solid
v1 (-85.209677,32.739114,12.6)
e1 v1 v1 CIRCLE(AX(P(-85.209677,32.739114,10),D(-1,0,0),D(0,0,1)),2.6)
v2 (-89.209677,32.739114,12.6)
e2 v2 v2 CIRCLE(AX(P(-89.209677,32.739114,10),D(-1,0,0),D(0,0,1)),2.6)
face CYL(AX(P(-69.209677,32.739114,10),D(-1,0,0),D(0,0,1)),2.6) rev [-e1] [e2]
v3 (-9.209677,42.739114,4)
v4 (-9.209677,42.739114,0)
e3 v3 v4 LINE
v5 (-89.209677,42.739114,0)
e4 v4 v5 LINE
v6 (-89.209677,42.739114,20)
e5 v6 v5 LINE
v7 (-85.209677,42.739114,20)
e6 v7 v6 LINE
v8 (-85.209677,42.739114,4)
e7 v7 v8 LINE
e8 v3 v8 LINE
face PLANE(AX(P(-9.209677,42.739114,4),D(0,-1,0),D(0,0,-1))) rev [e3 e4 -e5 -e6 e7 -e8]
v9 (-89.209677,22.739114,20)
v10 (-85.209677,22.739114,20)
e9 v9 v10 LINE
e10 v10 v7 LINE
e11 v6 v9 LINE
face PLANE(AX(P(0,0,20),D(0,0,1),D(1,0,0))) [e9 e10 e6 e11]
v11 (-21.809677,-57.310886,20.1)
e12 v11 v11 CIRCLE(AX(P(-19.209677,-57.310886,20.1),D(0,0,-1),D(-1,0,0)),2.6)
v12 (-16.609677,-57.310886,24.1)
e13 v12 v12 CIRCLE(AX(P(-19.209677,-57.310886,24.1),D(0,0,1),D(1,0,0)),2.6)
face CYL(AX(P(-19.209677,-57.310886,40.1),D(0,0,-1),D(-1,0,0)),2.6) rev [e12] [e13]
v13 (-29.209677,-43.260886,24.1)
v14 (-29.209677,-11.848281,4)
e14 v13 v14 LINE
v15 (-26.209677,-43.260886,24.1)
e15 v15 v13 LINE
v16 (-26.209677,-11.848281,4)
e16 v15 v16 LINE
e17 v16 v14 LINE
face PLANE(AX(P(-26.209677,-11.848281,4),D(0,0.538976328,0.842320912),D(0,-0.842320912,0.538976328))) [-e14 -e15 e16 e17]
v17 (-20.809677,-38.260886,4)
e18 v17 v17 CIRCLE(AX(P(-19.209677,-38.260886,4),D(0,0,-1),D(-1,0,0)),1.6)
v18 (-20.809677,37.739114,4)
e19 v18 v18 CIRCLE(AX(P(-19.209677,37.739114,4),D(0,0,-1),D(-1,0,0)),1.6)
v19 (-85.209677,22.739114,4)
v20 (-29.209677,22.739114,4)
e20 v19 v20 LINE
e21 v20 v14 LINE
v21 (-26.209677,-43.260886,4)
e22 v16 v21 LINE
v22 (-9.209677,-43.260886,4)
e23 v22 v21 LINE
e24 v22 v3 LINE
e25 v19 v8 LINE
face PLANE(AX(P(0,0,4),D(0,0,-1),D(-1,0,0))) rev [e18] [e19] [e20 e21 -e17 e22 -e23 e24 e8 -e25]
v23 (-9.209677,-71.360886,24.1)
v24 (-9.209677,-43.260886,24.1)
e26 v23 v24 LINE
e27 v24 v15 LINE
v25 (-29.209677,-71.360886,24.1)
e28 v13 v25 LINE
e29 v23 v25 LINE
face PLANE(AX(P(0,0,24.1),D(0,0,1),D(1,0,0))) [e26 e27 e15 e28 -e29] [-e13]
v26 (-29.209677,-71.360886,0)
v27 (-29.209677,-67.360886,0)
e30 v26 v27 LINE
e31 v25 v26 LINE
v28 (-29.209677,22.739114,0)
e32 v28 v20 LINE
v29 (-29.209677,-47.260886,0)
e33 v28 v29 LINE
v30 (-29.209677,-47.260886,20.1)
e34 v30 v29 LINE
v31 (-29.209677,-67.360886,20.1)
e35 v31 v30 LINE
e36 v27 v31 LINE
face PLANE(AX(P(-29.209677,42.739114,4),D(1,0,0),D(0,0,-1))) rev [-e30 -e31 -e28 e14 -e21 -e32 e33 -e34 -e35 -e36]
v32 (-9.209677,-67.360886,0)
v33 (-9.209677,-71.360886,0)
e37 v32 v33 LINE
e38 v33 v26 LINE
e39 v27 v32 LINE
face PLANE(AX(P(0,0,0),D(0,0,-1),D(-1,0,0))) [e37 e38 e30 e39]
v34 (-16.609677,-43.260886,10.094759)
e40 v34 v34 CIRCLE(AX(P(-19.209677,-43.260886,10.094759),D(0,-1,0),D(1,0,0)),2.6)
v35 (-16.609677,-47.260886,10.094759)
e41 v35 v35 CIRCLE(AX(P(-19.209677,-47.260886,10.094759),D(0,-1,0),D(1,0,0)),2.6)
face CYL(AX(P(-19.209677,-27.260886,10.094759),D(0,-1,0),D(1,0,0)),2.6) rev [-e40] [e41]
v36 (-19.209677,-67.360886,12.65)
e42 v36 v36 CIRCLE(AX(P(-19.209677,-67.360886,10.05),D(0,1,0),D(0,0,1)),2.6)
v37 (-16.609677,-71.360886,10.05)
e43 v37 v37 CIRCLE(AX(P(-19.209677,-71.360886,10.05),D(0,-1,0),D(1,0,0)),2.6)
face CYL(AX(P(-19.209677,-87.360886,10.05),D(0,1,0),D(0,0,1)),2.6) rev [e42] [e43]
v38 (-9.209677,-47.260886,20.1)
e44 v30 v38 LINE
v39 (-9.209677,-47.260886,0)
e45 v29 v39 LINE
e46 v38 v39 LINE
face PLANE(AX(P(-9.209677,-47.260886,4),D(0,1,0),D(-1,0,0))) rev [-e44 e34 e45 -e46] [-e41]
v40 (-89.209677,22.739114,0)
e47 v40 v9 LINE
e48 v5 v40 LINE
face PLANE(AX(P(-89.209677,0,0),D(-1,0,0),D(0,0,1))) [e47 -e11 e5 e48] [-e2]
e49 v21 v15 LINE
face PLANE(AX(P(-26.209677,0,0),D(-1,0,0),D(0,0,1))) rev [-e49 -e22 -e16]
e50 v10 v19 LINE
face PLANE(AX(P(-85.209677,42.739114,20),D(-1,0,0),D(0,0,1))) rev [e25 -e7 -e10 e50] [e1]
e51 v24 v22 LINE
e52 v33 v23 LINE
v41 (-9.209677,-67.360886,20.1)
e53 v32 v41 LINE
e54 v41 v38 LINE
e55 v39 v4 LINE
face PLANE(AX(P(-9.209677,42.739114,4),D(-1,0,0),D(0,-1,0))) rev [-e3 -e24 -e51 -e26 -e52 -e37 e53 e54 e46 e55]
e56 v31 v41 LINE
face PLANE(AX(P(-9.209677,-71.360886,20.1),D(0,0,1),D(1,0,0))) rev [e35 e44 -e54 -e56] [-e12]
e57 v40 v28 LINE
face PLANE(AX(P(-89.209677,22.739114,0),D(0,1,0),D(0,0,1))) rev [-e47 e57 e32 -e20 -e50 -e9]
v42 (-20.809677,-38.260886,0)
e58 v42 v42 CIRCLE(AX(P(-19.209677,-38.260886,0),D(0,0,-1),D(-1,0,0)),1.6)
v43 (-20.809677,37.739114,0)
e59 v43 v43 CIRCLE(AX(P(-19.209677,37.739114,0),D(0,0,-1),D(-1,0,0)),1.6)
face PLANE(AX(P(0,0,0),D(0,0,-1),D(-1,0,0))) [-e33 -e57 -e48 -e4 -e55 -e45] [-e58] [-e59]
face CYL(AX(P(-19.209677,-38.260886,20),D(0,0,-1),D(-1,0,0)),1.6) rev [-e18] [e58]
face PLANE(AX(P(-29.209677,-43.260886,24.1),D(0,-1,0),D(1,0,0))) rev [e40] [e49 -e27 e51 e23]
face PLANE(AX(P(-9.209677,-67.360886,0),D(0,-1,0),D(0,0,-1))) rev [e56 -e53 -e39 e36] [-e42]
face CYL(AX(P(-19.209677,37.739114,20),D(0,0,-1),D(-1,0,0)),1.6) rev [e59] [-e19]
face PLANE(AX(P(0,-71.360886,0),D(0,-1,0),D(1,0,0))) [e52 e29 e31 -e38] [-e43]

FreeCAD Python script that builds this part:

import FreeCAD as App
import Part
import Sketcher
from FreeCAD import Vector
Q = App.Units.Quantity

doc = App.newDocument("Part")
body = doc.addObject("PartDesign::Body", "Body")

sketch1 = doc.addObject("Sketcher::SketchObject", "Sketch")
body.addObject(sketch1)
sketch1.AttachmentSupport = (doc.XY_Plane, [""])
sketch1.MapMode = "FlatFace"
sketch1.addGeometry([
    Part.LineSegment(Vector(-29.209677, 42.739114, 0), Vector(-29.209677, -47.260886, 0)),
    Part.LineSegment(Vector(-29.209677, -47.260886, 0), Vector(-9.209677, -47.260886, 0)),
    Part.LineSegment(Vector(-9.209677, -47.260886, 0), Vector(-9.209677, 42.739114, 0)),
    Part.LineSegment(Vector(-9.209677, 42.739114, 0), Vector(-29.209677, 42.739114, 0)),
], False)
sketch1.addConstraint([
    Sketcher.Constraint("Coincident", 0, 2, 1, 1),
    Sketcher.Constraint("Coincident", 1, 2, 2, 1),
    Sketcher.Constraint("Coincident", 2, 2, 3, 1),
    Sketcher.Constraint("Coincident", 3, 2, 0, 1),
    Sketcher.Constraint("Vertical", 0),
    Sketcher.Constraint("Horizontal", 1),
    Sketcher.Constraint("Vertical", 2),
    Sketcher.Constraint("Horizontal", 3),
    Sketcher.Constraint("DistanceX", 1, 1, 1, 2, Q("20 mm")),
    Sketcher.Constraint("DistanceY", 0, 2, 0, 1, Q("90 mm")),
    Sketcher.Constraint("DistanceX", 0, 2, -1, 1, Q("29.209677 mm")),
    Sketcher.Constraint("DistanceY", 0, 2, -1, 1, Q("47.260886 mm")),
])
pad1 = doc.addObject("PartDesign::Pad", "Pad")
body.addObject(pad1)
pad1.Profile = sketch1
pad1.Length = 4

sketch2 = doc.addObject("Sketcher::SketchObject", "Sketch001")
body.addObject(sketch2)
sketch2.AttachmentSupport = (doc.XY_Plane, [""])
sketch2.MapMode = "FlatFace"
sketch2.AttachmentOffset = App.Placement(Vector(0, 0, 4), App.Rotation())
sketch2.addGeometry([
    Part.LineSegment(Vector(-29.209677, -43.260886, 0), Vector(-29.209677, -47.260886, 0)),
    Part.LineSegment(Vector(-29.209677, -47.260886, 0), Vector(-9.209677, -47.260886, 0)),
    Part.LineSegment(Vector(-9.209677, -47.260886, 0), Vector(-9.209677, -43.260886, 0)),
    Part.LineSegment(Vector(-9.209677, -43.260886, 0), Vector(-29.209677, -43.260886, 0)),
], False)
sketch2.addConstraint([
    Sketcher.Constraint("Coincident", 0, 2, 1, 1),
    Sketcher.Constraint("Coincident", 1, 2, 2, 1),
    Sketcher.Constraint("Coincident", 2, 2, 3, 1),
    Sketcher.Constraint("Coincident", 3, 2, 0, 1),
    Sketcher.Constraint("Vertical", 0),
    Sketcher.Constraint("Horizontal", 1),
    Sketcher.Constraint("Vertical", 2),
    Sketcher.Constraint("Horizontal", 3),
    Sketcher.Constraint("DistanceX", 1, 1, 1, 2, Q("20 mm")),
    Sketcher.Constraint("DistanceY", 0, 2, 0, 1, Q("4 mm")),
    Sketcher.Constraint("DistanceX", 0, 2, -1, 1, Q("29.209677 mm")),
    Sketcher.Constraint("DistanceY", 0, 2, -1, 1, Q("47.260886 mm")),
])
pad2 = doc.addObject("PartDesign::Pad", "Pad001")
body.addObject(pad2)
pad2.Profile = sketch2
pad2.Length = 20.1

sketch3 = doc.addObject("Sketcher::SketchObject", "Sketch002")
body.addObject(sketch3)
sketch3.AttachmentSupport = (doc.XZ_Plane, [""])
sketch3.MapMode = "FlatFace"
sketch3.AttachmentOffset = App.Placement(Vector(0, 0, 47.260886), App.Rotation())
sketch3.addGeometry([
    Part.LineSegment(Vector(-9.209677, 20.1, 0), Vector(-9.209677, 24.1, 0)),
    Part.LineSegment(Vector(-9.209677, 24.1, 0), Vector(-29.209677, 24.1, 0)),
    Part.LineSegment(Vector(-29.209677, 24.1, 0), Vector(-29.209677, 20.1, 0)),
    Part.LineSegment(Vector(-29.209677, 20.1, 0), Vector(-9.209677, 20.1, 0)),
], False)
sketch3.addConstraint([
    Sketcher.Constraint("Coincident", 0, 2, 1, 1),
    Sketcher.Constraint("Coincident", 1, 2, 2, 1),
    Sketcher.Constraint("Coincident", 2, 2, 3, 1),
    Sketcher.Constraint("Coincident", 3, 2, 0, 1),
    Sketcher.Constraint("Vertical", 0),
    Sketcher.Constraint("Horizontal", 1),
    Sketcher.Constraint("Vertical", 2),
    Sketcher.Constraint("Horizontal", 3),
    Sketcher.Constraint("DistanceX", 1, 2, 1, 1, Q("20 mm")),
    Sketcher.Constraint("DistanceY", 0, 1, 0, 2, Q("4 mm")),
    Sketcher.Constraint("DistanceY", -1, 1, 0, 2, Q("24.1 mm")),
    Sketcher.Constraint("DistanceX", 0, 2, -1, 1, Q("9.209677 mm")),
])
pad3 = doc.addObject("PartDesign::Pad", "Pad002")
body.addObject(pad3)
pad3.Profile = sketch3
pad3.Length = 24.1

sketch4 = doc.addObject("Sketcher::SketchObject", "Sketch003")
body.addObject(sketch4)
sketch4.AttachmentSupport = (doc.XY_Plane, [""])
sketch4.MapMode = "FlatFace"
sketch4.AttachmentOffset = App.Placement(Vector(0, 0, 20.1), App.Rotation())
sketch4.addGeometry([
    Part.LineSegment(Vector(-9.209677, -67.360886, 0), Vector(-9.209677, -71.360886, 0)),
    Part.LineSegment(Vector(-9.209677, -71.360886, 0), Vector(-29.209677, -71.360886, 0)),
    Part.LineSegment(Vector(-29.209677, -71.360886, 0), Vector(-29.209677, -67.360886, 0)),
    Part.LineSegment(Vector(-29.209677, -67.360886, 0), Vector(-9.209677, -67.360886, 0)),
], False)
sketch4.addConstraint([
    Sketcher.Constraint("Coincident", 0, 2, 1, 1),
    Sketcher.Constraint("Coincident", 1, 2, 2, 1),
    Sketcher.Constraint("Coincident", 2, 2, 3, 1),
    Sketcher.Constraint("Coincident", 3, 2, 0, 1),
    Sketcher.Constraint("Vertical", 0),
    Sketcher.Constraint("Horizontal", 1),
    Sketcher.Constraint("Vertical", 2),
    Sketcher.Constraint("Horizontal", 3),
    Sketcher.Constraint("DistanceX", 1, 2, 1, 1, Q("20 mm")),
    Sketcher.Constraint("DistanceY", 0, 2, 0, 1, Q("4 mm")),
    Sketcher.Constraint("DistanceX", 0, 2, -1, 1, Q("9.209677 mm")),
    Sketcher.Constraint("DistanceY", 0, 2, -1, 1, Q("71.360886 mm")),
])
pad4 = doc.addObject("PartDesign::Pad", "Pad003")
body.addObject(pad4)
pad4.Profile = sketch4
pad4.Length = 20.1
pad4.Reversed = True

sketch5 = doc.addObject("Sketcher::SketchObject", "Sketch004")
body.addObject(sketch5)
sketch5.AttachmentSupport = (doc.XZ_Plane, [""])
sketch5.MapMode = "FlatFace"
sketch5.AttachmentOffset = App.Placement(Vector(0, 0, 47.260886), App.Rotation())
sketch5.addGeometry(Part.Circle(Vector(-19.209677, 10.094759, 0), Vector(0, 0, 1), 2.6), False)
sketch5.addConstraint([
    Sketcher.Constraint("Diameter", 0, Q("5.2 mm")),
    Sketcher.Constraint("DistanceY", -1, 1, 0, 3, Q("10.094759 mm")),
    Sketcher.Constraint("DistanceX", 0, 3, -1, 1, Q("19.209677 mm")),
])
pocket1 = doc.addObject("PartDesign::Pocket", "Pocket")
body.addObject(pocket1)
pocket1.Profile = sketch5
pocket1.Length = 20

sketch6 = doc.addObject("Sketcher::SketchObject", "Sketch005")
body.addObject(sketch6)
sketch6.AttachmentSupport = (doc.XY_Plane, [""])
sketch6.MapMode = "FlatFace"
sketch6.AttachmentOffset = App.Placement(Vector(0, 0, 20.1), App.Rotation())
sketch6.addGeometry(Part.Circle(Vector(-19.209677, -57.310886, 0), Vector(0, 0, 1), 2.6), False)
sketch6.addConstraint([
    Sketcher.Constraint("Diameter", 0, Q("5.2 mm")),
    Sketcher.Constraint("DistanceX", 0, 3, -1, 1, Q("19.209677 mm")),
    Sketcher.Constraint("DistanceY", 0, 3, -1, 1, Q("57.310886 mm")),
])
pocket2 = doc.addObject("PartDesign::Pocket", "Pocket001")
body.addObject(pocket2)
pocket2.Profile = sketch6
pocket2.Length = 20
pocket2.Reversed = True

sketch7 = doc.addObject("Sketcher::SketchObject", "Sketch006")
body.addObject(sketch7)
sketch7.AttachmentSupport = (doc.XZ_Plane, [""])
sketch7.MapMode = "FlatFace"
sketch7.AttachmentOffset = App.Placement(Vector(0, 0, 67.360886), App.Rotation())
sketch7.addGeometry(Part.Circle(Vector(-19.209677, 10.05, 0), Vector(0, 0, 1), 2.6), False)
sketch7.addConstraint([
    Sketcher.Constraint("Diameter", 0, Q("5.2 mm")),
    Sketcher.Constraint("DistanceY", -1, 1, 0, 3, Q("10.05 mm")),
    Sketcher.Constraint("DistanceX", 0, 3, -1, 1, Q("19.209677 mm")),
])
pocket3 = doc.addObject("PartDesign::Pocket", "Pocket002")
body.addObject(pocket3)
pocket3.Profile = sketch7
pocket3.Length = 20
pocket3.Reversed = True

sketch8 = doc.addObject("Sketcher::SketchObject", "Sketch007")
body.addObject(sketch8)
sketch8.AttachmentSupport = (doc.XY_Plane, [""])
sketch8.MapMode = "FlatFace"
sketch8.addGeometry([
    Part.Circle(Vector(-19.209677, 37.739114, 0), Vector(0, 0, 1), 1.6),
    Part.Circle(Vector(-19.209677, -38.260886, 0), Vector(0, 0, 1), 1.6),
], False)
sketch8.addConstraint([
    Sketcher.Constraint("Equal", 0, 1),
    Sketcher.Constraint("Vertical", 0, 3, 1, 3),
    Sketcher.Constraint("Diameter", 0, Q("3.2 mm")),
    Sketcher.Constraint("DistanceY", 1, 3, 0, 3, Q("76 mm")),
    Sketcher.Constraint("DistanceX", 0, 3, -1, 1, Q("19.209677 mm")),
    Sketcher.Constraint("DistanceY", -1, 1, 0, 3, Q("37.739114 mm")),
])
pocket4 = doc.addObject("PartDesign::Pocket", "Pocket003")
body.addObject(pocket4)
pocket4.Profile = sketch8
pocket4.Length = 20
pocket4.Reversed = True

sketch9 = doc.addObject("Sketcher::SketchObject", "Sketch008")
body.addObject(sketch9)
sketch9.AttachmentSupport = (doc.YZ_Plane, [""])
sketch9.MapMode = "FlatFace"
sketch9.AttachmentOffset = App.Placement(Vector(0, 0, -29.209677), App.Rotation())
sketch9.addGeometry([
    Part.LineSegment(Vector(-43.260886, 24.1, 0), Vector(-11.848281, 4, 0)),
    Part.LineSegment(Vector(-11.848281, 4, 0), Vector(-43.260886, 4, 0)),
    Part.LineSegment(Vector(-43.260886, 4, 0), Vector(-43.260886, 24.1, 0)),
], False)
sketch9.addConstraint([
    Sketcher.Constraint("Coincident", 0, 2, 1, 1),
    Sketcher.Constraint("Coincident", 1, 2, 2, 1),
    Sketcher.Constraint("Coincident", 2, 2, 0, 1),
    Sketcher.Constraint("Horizontal", 1),
    Sketcher.Constraint("Vertical", 2),
    Sketcher.Constraint("DistanceY", 2, 1, 2, 2, Q("20.1 mm")),
    Sketcher.Constraint("DistanceY", -1, 1, 0, 2, Q("4 mm")),
    Sketcher.Constraint("Distance", 0, Q("37.292918 mm")),
    Sketcher.Constraint("DistanceX", 0, 2, -1, 1, Q("11.848281 mm")),
])
pad5 = doc.addObject("PartDesign::Pad", "Pad004")
body.addObject(pad5)
pad5.Profile = sketch9
pad5.Length = 3

sketch10 = doc.addObject("Sketcher::SketchObject", "Sketch009")
body.addObject(sketch10)
sketch10.AttachmentSupport = (doc.YZ_Plane, [""])
sketch10.MapMode = "FlatFace"
sketch10.AttachmentOffset = App.Placement(Vector(0, 0, -29.209677), App.Rotation())
sketch10.addGeometry([
    Part.LineSegment(Vector(42.739114, 0, 0), Vector(22.739114, 0, 0)),
    Part.LineSegment(Vector(22.739114, 0, 0), Vector(22.739114, 4, 0)),
    Part.LineSegment(Vector(22.739114, 4, 0), Vector(42.739114, 4, 0)),
    Part.LineSegment(Vector(42.739114, 4, 0), Vector(42.739114, 0, 0)),
], False)
sketch10.addConstraint([
    Sketcher.Constraint("Coincident", 0, 2, 1, 1),
    Sketcher.Constraint("Coincident", 1, 2, 2, 1),
    Sketcher.Constraint("Coincident", 2, 2, 3, 1),
    Sketcher.Constraint("Coincident", 3, 2, 0, 1),
    Sketcher.Constraint("Horizontal", 0),
    Sketcher.Constraint("Vertical", 1),
    Sketcher.Constraint("Horizontal", 2),
    Sketcher.Constraint("Vertical", 3),
    Sketcher.Constraint("PointOnObject", 0, 2, -1),
    Sketcher.Constraint("DistanceX", 0, 2, 0, 1, Q("20 mm")),
    Sketcher.Constraint("DistanceY", 1, 1, 1, 2, Q("4 mm")),
    Sketcher.Constraint("DistanceX", -1, 1, 0, 2, Q("22.739114 mm")),
])
pad6 = doc.addObject("PartDesign::Pad", "Pad005")
body.addObject(pad6)
pad6.Profile = sketch10
pad6.Length = 60
pad6.Reversed = True

sketch11 = doc.addObject("Sketcher::SketchObject", "Sketch010")
body.addObject(sketch11)
sketch11.AttachmentSupport = (doc.XY_Plane, [""])
sketch11.MapMode = "FlatFace"
sketch11.AttachmentOffset = App.Placement(Vector(0, 0, 4), App.Rotation())
sketch11.addGeometry([
    Part.LineSegment(Vector(-89.209677, 42.739114, 0), Vector(-89.209677, 22.739114, 0)),
    Part.LineSegment(Vector(-89.209677, 22.739114, 0), Vector(-85.209677, 22.739114, 0)),
    Part.LineSegment(Vector(-85.209677, 22.739114, 0), Vector(-85.209677, 42.739114, 0)),
    Part.LineSegment(Vector(-85.209677, 42.739114, 0), Vector(-89.209677, 42.739114, 0)),
], False)
sketch11.addConstraint([
    Sketcher.Constraint("Coincident", 0, 2, 1, 1),
    Sketcher.Constraint("Coincident", 1, 2, 2, 1),
    Sketcher.Constraint("Coincident", 2, 2, 3, 1),
    Sketcher.Constraint("Coincident", 3, 2, 0, 1),
    Sketcher.Constraint("Vertical", 0),
    Sketcher.Constraint("Horizontal", 1),
    Sketcher.Constraint("Vertical", 2),
    Sketcher.Constraint("Horizontal", 3),
    Sketcher.Constraint("DistanceX", 1, 1, 1, 2, Q("4 mm")),
    Sketcher.Constraint("DistanceY", 0, 2, 0, 1, Q("20 mm")),
    Sketcher.Constraint("DistanceX", 0, 2, -1, 1, Q("89.209677 mm")),
    Sketcher.Constraint("DistanceY", -1, 1, 0, 2, Q("22.739114 mm")),
])
pad7 = doc.addObject("PartDesign::Pad", "Pad006")
body.addObject(pad7)
pad7.Profile = sketch11
pad7.Length = 16

sketch12 = doc.addObject("Sketcher::SketchObject", "Sketch011")
body.addObject(sketch12)
sketch12.AttachmentSupport = (doc.YZ_Plane, [""])
sketch12.MapMode = "FlatFace"
sketch12.AttachmentOffset = App.Placement(Vector(0, 0, -89.209677), App.Rotation())
sketch12.addGeometry(Part.Circle(Vector(32.739114, 10, 0), Vector(0, 0, 1), 2.6), False)
sketch12.addConstraint([
    Sketcher.Constraint("Diameter", 0, Q("5.2 mm")),
    Sketcher.Constraint("DistanceY", -1, 1, 0, 3, Q("10 mm")),
    Sketcher.Constraint("DistanceX", -1, 1, 0, 3, Q("32.739114 mm")),
])
pocket5 = doc.addObject("PartDesign::Pocket", "Pocket004")
body.addObject(pocket5)
pocket5.Profile = sketch12
pocket5.Length = 20
pocket5.Reversed = True

doc.recompute()
